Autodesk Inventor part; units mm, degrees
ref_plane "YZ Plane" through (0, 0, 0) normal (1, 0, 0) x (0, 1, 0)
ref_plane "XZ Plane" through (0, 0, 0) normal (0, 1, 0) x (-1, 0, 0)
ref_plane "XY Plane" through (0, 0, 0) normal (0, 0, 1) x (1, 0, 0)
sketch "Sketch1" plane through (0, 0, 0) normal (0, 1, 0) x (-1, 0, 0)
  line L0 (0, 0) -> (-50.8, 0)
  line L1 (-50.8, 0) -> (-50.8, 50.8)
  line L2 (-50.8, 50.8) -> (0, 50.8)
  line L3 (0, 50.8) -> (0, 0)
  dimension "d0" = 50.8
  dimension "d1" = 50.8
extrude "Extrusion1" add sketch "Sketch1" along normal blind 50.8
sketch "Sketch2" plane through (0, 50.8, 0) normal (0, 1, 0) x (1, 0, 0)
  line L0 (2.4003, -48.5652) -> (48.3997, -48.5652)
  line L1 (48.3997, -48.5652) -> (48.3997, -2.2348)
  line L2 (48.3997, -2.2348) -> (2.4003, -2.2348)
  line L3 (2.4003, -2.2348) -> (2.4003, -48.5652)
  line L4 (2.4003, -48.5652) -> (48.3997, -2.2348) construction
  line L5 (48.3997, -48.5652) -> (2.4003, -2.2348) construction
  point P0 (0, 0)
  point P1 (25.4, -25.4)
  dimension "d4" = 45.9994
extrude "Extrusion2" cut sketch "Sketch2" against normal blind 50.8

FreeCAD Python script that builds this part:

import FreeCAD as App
import Part
import Sketcher

V = App.Vector
Q = App.Units.Quantity

doc = App.newDocument("Part")
body = doc.addObject("PartDesign::Body", "Body")

sketch1 = doc.addObject("Sketcher::SketchObject", "Sketch")
body.addObject(sketch1)
sketch1.AttachmentSupport = (doc.XZ_Plane, [""])
sketch1.MapMode = "FlatFace"
sketch1.addGeometry([
    Part.LineSegment(V(51, 0, 0), V(0, 0, 0)),
    Part.LineSegment(V(0, 0, 0), V(0, 51, 0)),
    Part.LineSegment(V(0, 51, 0), V(51, 51, 0)),
    Part.LineSegment(V(51, 51, 0), V(51, 0, 0)),
], False)
sketch1.addConstraint([
    Sketcher.Constraint("Coincident", 0, 2, 1, 1),
    Sketcher.Constraint("Coincident", 1, 2, 2, 1),
    Sketcher.Constraint("Coincident", 2, 2, 3, 1),
    Sketcher.Constraint("Coincident", 3, 2, 0, 1),
    Sketcher.Constraint("Horizontal", 0),
    Sketcher.Constraint("Vertical", 1),
    Sketcher.Constraint("Horizontal", 2),
    Sketcher.Constraint("Vertical", 3),
    Sketcher.Constraint("Coincident", 0, 2, -1, 1),
    Sketcher.Constraint("Equal", 2, 1),
    Sketcher.Constraint("DistanceX", 0, 2, 0, 1, Q("2 in")),
])
pad1 = doc.addObject("PartDesign::Pad", "Pad")
body.addObject(pad1)
pad1.Profile = sketch1
pad1.Length = Q("2 in")
pad1.Reversed = True

sketch2 = doc.addObject("Sketcher::SketchObject", "Sketch001")
body.addObject(sketch2)
sketch2.AttachmentSupport = (doc.XZ_Plane, [""])
sketch2.MapMode = "FlatFace"
sketch2.AttachmentOffset = App.Placement(V(0, 0, -2 * 25.4), App.Rotation())
sketch2.addGeometry([
    Part.LineSegment(V(2, 2, 0), V(2, 49, 0)),
    Part.LineSegment(V(2, 49, 0), V(48, 49, 0)),
    Part.LineSegment(V(48, 49, 0), V(48, 2, 0)),
    Part.LineSegment(V(48, 2, 0), V(2, 2, 0)),
], False)
sketch2.addConstraint([
    Sketcher.Constraint("Coincident", 0, 2, 1, 1),
    Sketcher.Constraint("Coincident", 1, 2, 2, 1),
    Sketcher.Constraint("Coincident", 2, 2, 3, 1),
    Sketcher.Constraint("Coincident", 3, 2, 0, 1),
    Sketcher.Constraint("Vertical", 0),
    Sketcher.Constraint("Horizontal", 1),
    Sketcher.Constraint("Vertical", 2),
    Sketcher.Constraint("Horizontal", 3),
    Sketcher.Constraint("DistanceX", 1, 1, 1, 2, Q("1.811 in")),
    Sketcher.Constraint("DistanceY", 0, 1, 0, 2, Q("46.3304 mm")),
    Sketcher.Constraint("DistanceX", -1, 1, 0, 2, Q("0.0945 in")),
    Sketcher.Constraint("DistanceY", -1, 1, 0, 2, Q("48.5652 mm")),
])
pocket1 = doc.addObject("PartDesign::Pocket", "Pocket")
body.addObject(pocket1)
pocket1.Profile = sketch2
pocket1.Length = Q("2 in")
pocket1.Reversed = True

doc.recompute()
